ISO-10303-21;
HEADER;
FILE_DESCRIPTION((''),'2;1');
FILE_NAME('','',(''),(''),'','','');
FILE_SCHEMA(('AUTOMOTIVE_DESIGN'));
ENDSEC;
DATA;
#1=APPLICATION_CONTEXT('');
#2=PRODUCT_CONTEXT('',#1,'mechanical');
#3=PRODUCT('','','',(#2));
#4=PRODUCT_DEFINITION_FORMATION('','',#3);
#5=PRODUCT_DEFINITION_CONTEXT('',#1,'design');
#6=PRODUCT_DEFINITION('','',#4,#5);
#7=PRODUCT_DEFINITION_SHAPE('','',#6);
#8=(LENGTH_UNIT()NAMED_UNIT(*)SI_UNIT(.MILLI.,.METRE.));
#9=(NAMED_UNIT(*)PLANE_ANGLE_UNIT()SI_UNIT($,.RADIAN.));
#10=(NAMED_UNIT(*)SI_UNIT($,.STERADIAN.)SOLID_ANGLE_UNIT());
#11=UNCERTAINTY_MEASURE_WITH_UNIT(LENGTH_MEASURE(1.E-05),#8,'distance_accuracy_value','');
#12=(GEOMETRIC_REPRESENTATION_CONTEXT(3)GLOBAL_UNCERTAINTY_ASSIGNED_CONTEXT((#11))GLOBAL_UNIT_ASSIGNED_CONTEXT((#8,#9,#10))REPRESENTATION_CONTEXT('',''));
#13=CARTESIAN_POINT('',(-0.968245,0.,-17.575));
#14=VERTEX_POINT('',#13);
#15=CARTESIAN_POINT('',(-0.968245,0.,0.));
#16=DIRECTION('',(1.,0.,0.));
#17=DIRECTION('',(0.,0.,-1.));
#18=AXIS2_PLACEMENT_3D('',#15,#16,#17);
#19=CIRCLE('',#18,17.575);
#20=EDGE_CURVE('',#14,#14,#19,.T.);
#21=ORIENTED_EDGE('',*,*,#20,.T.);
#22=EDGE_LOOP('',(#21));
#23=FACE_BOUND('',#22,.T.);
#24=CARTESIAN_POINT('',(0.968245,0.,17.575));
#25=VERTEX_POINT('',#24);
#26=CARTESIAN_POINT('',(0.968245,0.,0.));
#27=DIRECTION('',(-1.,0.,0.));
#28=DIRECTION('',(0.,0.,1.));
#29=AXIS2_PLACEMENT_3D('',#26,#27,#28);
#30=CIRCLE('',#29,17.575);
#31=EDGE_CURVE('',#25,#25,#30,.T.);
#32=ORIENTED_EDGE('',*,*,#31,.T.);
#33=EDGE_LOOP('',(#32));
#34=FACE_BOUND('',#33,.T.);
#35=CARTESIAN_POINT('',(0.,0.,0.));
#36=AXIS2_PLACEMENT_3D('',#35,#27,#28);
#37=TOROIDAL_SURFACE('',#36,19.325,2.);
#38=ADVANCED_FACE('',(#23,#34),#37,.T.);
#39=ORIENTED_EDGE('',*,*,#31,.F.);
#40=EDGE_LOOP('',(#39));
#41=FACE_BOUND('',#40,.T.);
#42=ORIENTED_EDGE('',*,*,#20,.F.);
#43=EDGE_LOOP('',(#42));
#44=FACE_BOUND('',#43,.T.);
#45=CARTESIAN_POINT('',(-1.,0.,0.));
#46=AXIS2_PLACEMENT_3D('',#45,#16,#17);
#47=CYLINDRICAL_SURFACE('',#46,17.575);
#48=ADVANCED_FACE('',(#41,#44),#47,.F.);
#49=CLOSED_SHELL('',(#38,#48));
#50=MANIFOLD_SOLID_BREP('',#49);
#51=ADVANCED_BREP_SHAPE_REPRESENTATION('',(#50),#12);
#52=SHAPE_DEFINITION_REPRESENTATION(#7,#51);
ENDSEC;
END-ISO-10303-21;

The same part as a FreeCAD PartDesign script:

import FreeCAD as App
import Part
import Sketcher
from FreeCAD import Vector
Q = App.Units.Quantity

doc = App.newDocument("Part")
body = doc.addObject("PartDesign::Body", "Body")

# Sketch on XY plane
sketch1 = doc.addObject("Sketcher::SketchObject", "Sketch")
body.addObject(sketch1)
sketch1.AttachmentSupport = (doc.XY_Plane, [""])
sketch1.MapMode = "FlatFace"
sketch1.addGeometry(Part.Circle(Vector(0, 19.3, 0), Vector(0, 0, 1), 2), False)
sketch1.addConstraint([
    Sketcher.Constraint("PointOnObject", 0, 3, -2),
    Sketcher.Constraint("Diameter", 0, Q("4 mm")),
    Sketcher.Constraint("DistanceY", -1, 1, 0, 3, Q("19.325 mm")),
])
revolution = doc.addObject("PartDesign::Revolution", "Revolution")
body.addObject(revolution)
revolution.Profile = sketch1
revolution.ReferenceAxis = (sketch1, ["H_Axis"])
revolution.Angle = 360

# Sketch on YZ plane
sketch2 = doc.addObject("Sketcher::SketchObject", "Sketch001")
body.addObject(sketch2)
sketch2.AttachmentSupport = (doc.YZ_Plane, [""])
sketch2.MapMode = "FlatFace"
sketch2.addGeometry(Part.Circle(Vector(0, 0, 0), Vector(0, 0, 1), 18), False)
sketch2.addConstraint([
    Sketcher.Constraint("Coincident", 0, 3, -1, 1),
    Sketcher.Constraint("Diameter", 0, Q("35.15 mm")),
])
pocket1 = doc.addObject("PartDesign::Pocket", "Pocket")
body.addObject(pocket1)
pocket1.Profile = sketch2
pocket1.Length = 2
pocket1.Midplane = True

doc.recompute()
